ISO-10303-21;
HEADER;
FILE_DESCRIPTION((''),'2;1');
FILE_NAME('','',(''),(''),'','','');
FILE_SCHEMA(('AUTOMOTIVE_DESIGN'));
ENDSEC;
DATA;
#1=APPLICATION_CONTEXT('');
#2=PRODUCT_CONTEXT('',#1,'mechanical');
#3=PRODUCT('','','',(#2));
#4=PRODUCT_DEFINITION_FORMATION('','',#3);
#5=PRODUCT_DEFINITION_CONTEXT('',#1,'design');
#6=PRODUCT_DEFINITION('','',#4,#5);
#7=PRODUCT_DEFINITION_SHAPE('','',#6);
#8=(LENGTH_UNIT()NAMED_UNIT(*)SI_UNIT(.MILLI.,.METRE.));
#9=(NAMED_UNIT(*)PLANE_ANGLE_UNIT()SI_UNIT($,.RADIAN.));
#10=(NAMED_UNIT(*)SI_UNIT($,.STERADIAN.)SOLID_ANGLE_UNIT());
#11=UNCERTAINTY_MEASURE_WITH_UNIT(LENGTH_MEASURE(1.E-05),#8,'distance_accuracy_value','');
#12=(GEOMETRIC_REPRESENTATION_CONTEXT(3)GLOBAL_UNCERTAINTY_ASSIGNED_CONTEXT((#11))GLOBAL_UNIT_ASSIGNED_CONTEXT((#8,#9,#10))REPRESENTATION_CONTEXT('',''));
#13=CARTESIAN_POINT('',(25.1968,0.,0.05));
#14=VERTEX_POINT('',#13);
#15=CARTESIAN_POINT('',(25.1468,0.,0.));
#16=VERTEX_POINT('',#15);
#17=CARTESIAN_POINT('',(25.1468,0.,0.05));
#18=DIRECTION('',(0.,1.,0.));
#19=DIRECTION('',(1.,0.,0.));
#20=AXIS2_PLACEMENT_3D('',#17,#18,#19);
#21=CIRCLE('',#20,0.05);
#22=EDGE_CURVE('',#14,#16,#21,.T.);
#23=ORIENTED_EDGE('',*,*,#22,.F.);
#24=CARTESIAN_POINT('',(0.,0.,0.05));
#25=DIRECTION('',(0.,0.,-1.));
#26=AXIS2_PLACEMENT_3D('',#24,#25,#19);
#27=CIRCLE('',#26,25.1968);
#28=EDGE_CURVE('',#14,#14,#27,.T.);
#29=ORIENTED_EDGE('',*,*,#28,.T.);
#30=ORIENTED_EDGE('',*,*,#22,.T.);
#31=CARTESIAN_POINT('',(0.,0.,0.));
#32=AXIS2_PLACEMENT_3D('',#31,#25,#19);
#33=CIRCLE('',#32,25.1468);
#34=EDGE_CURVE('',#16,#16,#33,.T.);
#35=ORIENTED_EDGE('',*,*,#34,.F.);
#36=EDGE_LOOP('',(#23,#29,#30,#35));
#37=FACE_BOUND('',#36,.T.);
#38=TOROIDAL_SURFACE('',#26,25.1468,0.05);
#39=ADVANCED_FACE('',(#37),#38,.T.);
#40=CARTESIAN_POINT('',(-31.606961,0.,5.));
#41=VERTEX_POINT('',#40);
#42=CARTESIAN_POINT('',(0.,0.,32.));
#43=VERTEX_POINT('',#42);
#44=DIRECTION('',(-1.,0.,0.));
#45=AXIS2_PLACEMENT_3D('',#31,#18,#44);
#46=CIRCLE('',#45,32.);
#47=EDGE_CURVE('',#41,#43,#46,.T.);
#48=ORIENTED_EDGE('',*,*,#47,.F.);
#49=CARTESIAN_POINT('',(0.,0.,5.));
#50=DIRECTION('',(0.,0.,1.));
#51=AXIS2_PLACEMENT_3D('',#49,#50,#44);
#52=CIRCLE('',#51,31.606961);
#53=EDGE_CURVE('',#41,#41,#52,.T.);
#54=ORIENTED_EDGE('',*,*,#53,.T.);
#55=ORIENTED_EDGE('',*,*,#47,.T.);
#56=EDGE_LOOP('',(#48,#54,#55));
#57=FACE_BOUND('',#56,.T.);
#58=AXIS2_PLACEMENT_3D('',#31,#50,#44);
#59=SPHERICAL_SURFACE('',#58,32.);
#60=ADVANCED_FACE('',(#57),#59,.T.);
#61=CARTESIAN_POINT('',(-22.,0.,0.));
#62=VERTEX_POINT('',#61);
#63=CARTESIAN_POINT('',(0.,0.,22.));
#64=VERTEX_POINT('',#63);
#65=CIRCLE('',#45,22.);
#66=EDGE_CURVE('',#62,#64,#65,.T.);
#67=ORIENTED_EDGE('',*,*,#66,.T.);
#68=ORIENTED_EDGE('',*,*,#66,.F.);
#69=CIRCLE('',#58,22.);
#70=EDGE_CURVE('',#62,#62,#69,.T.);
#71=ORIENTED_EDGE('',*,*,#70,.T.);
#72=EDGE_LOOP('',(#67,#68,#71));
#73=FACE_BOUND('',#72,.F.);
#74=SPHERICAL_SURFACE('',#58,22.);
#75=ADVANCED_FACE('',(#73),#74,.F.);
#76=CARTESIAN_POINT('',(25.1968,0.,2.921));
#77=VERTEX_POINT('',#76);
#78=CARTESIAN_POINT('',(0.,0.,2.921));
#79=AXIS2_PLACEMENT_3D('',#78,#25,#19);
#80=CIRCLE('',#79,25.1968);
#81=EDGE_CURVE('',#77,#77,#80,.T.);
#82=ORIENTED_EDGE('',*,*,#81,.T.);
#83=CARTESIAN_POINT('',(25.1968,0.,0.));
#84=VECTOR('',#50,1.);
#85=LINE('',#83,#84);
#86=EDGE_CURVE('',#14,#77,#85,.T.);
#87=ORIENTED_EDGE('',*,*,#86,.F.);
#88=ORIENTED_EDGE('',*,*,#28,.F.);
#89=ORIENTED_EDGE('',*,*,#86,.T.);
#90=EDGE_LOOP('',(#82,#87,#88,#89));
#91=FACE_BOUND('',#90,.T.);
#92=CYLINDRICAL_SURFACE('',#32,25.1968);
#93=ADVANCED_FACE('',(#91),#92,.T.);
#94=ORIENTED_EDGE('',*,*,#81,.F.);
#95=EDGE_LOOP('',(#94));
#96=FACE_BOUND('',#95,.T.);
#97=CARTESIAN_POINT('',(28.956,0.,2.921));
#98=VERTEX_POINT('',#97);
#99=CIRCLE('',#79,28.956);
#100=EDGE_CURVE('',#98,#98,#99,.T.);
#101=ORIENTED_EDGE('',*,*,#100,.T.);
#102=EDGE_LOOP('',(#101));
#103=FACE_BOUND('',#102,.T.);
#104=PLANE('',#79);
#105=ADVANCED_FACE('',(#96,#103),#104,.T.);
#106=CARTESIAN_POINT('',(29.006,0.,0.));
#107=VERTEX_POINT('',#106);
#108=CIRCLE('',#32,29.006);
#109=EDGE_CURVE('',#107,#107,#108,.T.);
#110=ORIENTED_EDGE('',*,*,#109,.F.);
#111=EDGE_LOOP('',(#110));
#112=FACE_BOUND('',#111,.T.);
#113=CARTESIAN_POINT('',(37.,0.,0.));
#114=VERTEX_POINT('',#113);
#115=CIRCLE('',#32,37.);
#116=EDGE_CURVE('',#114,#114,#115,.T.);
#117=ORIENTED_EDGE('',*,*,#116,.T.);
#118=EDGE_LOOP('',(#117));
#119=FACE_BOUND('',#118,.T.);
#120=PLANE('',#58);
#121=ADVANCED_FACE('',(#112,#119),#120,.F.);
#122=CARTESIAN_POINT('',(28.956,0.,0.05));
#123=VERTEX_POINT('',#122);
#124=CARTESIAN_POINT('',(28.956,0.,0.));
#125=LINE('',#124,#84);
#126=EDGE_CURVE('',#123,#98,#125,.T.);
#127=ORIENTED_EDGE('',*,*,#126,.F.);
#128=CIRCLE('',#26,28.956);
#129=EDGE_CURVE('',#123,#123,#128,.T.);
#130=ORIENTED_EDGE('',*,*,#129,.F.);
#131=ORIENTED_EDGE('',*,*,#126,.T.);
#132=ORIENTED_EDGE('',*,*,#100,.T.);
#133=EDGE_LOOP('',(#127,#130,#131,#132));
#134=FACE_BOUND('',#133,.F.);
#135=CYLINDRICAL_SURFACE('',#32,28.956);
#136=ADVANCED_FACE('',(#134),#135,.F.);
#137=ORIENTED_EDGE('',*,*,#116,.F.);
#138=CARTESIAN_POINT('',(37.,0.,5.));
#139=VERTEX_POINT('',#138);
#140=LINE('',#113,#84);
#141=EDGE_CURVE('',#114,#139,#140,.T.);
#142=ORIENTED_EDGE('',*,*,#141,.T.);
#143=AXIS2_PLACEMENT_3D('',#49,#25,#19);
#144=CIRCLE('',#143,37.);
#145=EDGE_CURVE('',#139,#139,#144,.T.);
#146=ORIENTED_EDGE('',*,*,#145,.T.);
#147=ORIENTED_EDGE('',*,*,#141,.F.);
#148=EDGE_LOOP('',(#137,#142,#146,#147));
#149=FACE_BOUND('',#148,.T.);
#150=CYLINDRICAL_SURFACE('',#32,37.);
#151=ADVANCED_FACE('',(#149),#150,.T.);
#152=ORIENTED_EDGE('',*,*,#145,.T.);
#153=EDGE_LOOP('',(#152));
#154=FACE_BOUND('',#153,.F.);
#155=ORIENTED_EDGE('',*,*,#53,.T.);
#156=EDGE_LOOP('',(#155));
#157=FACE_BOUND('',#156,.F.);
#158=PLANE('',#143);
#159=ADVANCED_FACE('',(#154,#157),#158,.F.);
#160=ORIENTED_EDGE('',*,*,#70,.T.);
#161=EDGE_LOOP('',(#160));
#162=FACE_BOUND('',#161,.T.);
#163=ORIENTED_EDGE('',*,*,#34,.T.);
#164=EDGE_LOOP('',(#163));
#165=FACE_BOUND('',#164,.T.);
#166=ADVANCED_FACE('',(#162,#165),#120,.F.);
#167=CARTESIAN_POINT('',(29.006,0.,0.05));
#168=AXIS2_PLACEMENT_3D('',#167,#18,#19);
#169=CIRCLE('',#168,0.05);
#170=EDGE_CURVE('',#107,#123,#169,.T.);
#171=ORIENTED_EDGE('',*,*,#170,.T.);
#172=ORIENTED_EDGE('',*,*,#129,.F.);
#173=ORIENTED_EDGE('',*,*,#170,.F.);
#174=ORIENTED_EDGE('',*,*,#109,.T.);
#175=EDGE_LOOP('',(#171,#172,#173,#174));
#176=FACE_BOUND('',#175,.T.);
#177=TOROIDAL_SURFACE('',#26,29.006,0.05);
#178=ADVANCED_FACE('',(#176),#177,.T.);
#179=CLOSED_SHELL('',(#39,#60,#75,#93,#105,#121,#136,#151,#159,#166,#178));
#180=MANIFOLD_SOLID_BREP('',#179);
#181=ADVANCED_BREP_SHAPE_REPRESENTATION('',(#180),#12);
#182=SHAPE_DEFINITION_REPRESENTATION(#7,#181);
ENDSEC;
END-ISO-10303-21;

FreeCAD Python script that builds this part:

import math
import FreeCAD as App
import Part
import Sketcher
from FreeCAD import Vector
Q = App.Units.Quantity


def edges_at(feature, points):
    """Names of the edges that pass closest to the given points."""
    edges = feature.Shape.Edges
    near = lambda p: min(range(len(edges)), key=lambda i: edges[i].distToShape(Part.Vertex(*p))[0])
    return sorted({f"Edge{near(p) + 1}" for p in points})

doc = App.newDocument("Part")
body = doc.addObject("PartDesign::Body", "Body")

sketch1 = body.newObject("Sketcher::SketchObject", "Sketch")
sketch1.AttachmentSupport = (doc.getObject("XZ_Plane"), [""])
sketch1.MapMode = "FlatFace"
sketch1.addGeometry([
    Part.LineSegment(Vector(-22, 0, 0), Vector(-32, 0, 0)),
    Part.ArcOfCircle(Part.Circle(Vector(0, 0, 0), Vector(0, 0, 1), 32), math.radians(90), math.radians(180)),
    Part.LineSegment(Vector(0, 32, 0), Vector(0, 22, 0)),
    Part.ArcOfCircle(Part.Circle(Vector(0, 0, 0), Vector(0, 0, 1), 22), math.radians(90), math.radians(180)),
], False)
sketch1.addConstraint([
    Sketcher.Constraint("Coincident", 0, 2, 1, 2),
    Sketcher.Constraint("Coincident", 1, 1, 2, 1),
    Sketcher.Constraint("Coincident", 2, 2, 3, 1),
    Sketcher.Constraint("Coincident", 3, 2, 0, 1),
    Sketcher.Constraint("Horizontal", 0),
    Sketcher.Constraint("Vertical", 2),
    Sketcher.Constraint("Coincident", 1, 3, -1, 1),
    Sketcher.Constraint("Coincident", 3, 3, -1, 1),
    Sketcher.Constraint("PointOnObject", 0, 2, -1),
    Sketcher.Constraint("PointOnObject", 1, 1, -2),
    Sketcher.Constraint("Radius", 1, Q("32 mm")),
    Sketcher.Constraint("Radius", 3, Q("22 mm")),
])
revolution = body.newObject("PartDesign::Revolution", "Revolution")
revolution.Profile = sketch1
revolution.ReferenceAxis = (sketch1, ["V_Axis"])
revolution.Angle = 360

sketch2 = body.newObject("Sketcher::SketchObject", "Sketch001")
sketch2.AttachmentSupport = (doc.getObject("XY_Plane"), [""])
sketch2.MapMode = "FlatFace"
sketch2.addGeometry([
    Part.Circle(Vector(0, 0, 0), Vector(0, 0, 1), 29),
    Part.Circle(Vector(0, 0, 0), Vector(0, 0, 1), 25),
], False)
sketch2.addConstraint([
    Sketcher.Constraint("Coincident", 0, 3, -1, 1),
    Sketcher.Constraint("Coincident", 1, 3, -1, 1),
    Sketcher.Constraint("Diameter", 0, Q("57.912 mm")),
    Sketcher.Constraint("Diameter", 1, Q("50.3936 mm")),
])
pocket1 = body.newObject("PartDesign::Pocket", "Pocket")
pocket1.Profile = sketch2
pocket1.Length = 2.921
pocket1.Reversed = True

sketch3 = body.newObject("Sketcher::SketchObject", "Sketch002")
sketch3.AttachmentSupport = (doc.getObject("XY_Plane"), [""])
sketch3.MapMode = "FlatFace"
sketch3.addGeometry([
    Part.Circle(Vector(0, 0, 0), Vector(0, 0, 1), 37),
    Part.Circle(Vector(0, 0, 0), Vector(0, 0, 1), 29),
], False)
sketch3.addConstraint([
    Sketcher.Constraint("Coincident", 0, 3, -1, 1),
    Sketcher.Constraint("Coincident", 1, 3, -1, 1),
    Sketcher.Constraint("Diameter", 0, Q("74 mm")),
    Sketcher.Constraint("Diameter", 1, Q("57.912 mm")),
])
pad1 = body.newObject("PartDesign::Pad", "Pad")
pad1.Profile = sketch3
pad1.Length = 5
doc.recompute()

fillet = body.newObject("PartDesign::Fillet", "Fillet")
fillet.Base = (pad1, edges_at(pad1, [(-23.492, 9.112, 0), (-26.997, -10.471, 0)]))
fillet.Radius = 0.05

doc.recompute()
